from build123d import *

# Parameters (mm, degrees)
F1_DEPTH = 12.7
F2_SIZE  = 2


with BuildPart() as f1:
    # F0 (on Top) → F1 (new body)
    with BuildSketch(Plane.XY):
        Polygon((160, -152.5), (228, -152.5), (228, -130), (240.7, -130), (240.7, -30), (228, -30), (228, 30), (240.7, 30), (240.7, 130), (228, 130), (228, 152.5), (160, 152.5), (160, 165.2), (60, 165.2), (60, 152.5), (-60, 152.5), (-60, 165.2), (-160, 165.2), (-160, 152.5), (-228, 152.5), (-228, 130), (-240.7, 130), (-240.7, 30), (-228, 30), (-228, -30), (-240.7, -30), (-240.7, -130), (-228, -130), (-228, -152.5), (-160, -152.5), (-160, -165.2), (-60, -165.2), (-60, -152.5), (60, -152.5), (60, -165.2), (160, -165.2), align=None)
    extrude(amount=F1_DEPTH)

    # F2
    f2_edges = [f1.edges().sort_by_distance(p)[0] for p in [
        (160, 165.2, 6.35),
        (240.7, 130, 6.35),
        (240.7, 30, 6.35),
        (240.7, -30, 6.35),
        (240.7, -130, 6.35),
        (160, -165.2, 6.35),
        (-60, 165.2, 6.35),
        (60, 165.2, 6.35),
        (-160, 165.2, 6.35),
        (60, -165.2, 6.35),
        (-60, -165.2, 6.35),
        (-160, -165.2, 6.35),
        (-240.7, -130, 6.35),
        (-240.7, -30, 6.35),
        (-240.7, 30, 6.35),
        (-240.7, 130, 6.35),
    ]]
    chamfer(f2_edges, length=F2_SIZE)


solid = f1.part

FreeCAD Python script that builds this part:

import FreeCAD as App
import Part
import Sketcher

V = App.Vector
Q = App.Units.Quantity


def edges_at(feature, points):
    """Names of the edges that pass closest to the given points."""
    edges = feature.Shape.Edges
    near = lambda p: min(range(len(edges)), key=lambda i: edges[i].distToShape(Part.Vertex(*p))[0])
    return sorted({f"Edge{near(p) + 1}" for p in points})

doc = App.newDocument("Part")
body = doc.addObject("PartDesign::Body", "Body")

# Sketch on XY plane
sketch1 = doc.addObject("Sketcher::SketchObject", "Sketch")
body.addObject(sketch1)
sketch1.AttachmentSupport = (doc.XY_Plane, [""])
sketch1.MapMode = "FlatFace"
sketch1.addGeometry(Part.LineSegment(V(160, -152, 0), V(228, -152, 0)), False)
sketch1.addGeometry(Part.LineSegment(V(228, -152, 0), V(228, -130, 0)), False)
sketch1.addGeometry(Part.LineSegment(V(228, -130, 0), V(241, -130, 0)), False)
sketch1.addGeometry(Part.LineSegment(V(241, -130, 0), V(241, -30, 0)), False)
sketch1.addGeometry(Part.LineSegment(V(241, -30, 0), V(228, -30, 0)), False)
sketch1.addGeometry(Part.LineSegment(V(228, -30, 0), V(228, 30, 0)), False)
sketch1.addGeometry(Part.LineSegment(V(228, 30, 0), V(241, 30, 0)), False)
sketch1.addGeometry(Part.LineSegment(V(241, 30, 0), V(241, 130, 0)), False)
sketch1.addGeometry(Part.LineSegment(V(241, 130, 0), V(228, 130, 0)), False)
sketch1.addGeometry(Part.LineSegment(V(228, 130, 0), V(228, 152, 0)), False)
sketch1.addGeometry(Part.LineSegment(V(228, 152, 0), V(160, 152, 0)), False)
sketch1.addGeometry(Part.LineSegment(V(160, 152, 0), V(160, 165, 0)), False)
sketch1.addGeometry(Part.LineSegment(V(160, 165, 0), V(60, 165, 0)), False)
sketch1.addGeometry(Part.LineSegment(V(60, 165, 0), V(60, 152, 0)), False)
sketch1.addGeometry(Part.LineSegment(V(60, 152, 0), V(-60, 152, 0)), False)
sketch1.addGeometry(Part.LineSegment(V(-60, 152, 0), V(-60, 165, 0)), False)
sketch1.addGeometry(Part.LineSegment(V(-60, 165, 0), V(-160, 165, 0)), False)
sketch1.addGeometry(Part.LineSegment(V(-160, 165, 0), V(-160, 152, 0)), False)
sketch1.addGeometry(Part.LineSegment(V(-160, 152, 0), V(-228, 152, 0)), False)
sketch1.addGeometry(Part.LineSegment(V(-228, 152, 0), V(-228, 130, 0)), False)
sketch1.addGeometry(Part.LineSegment(V(-228, 130, 0), V(-241, 130, 0)), False)
sketch1.addGeometry(Part.LineSegment(V(-241, 130, 0), V(-241, 30, 0)), False)
sketch1.addGeometry(Part.LineSegment(V(-241, 30, 0), V(-228, 30, 0)), False)
sketch1.addGeometry(Part.LineSegment(V(-228, 30, 0), V(-228, -30, 0)), False)
sketch1.addGeometry(Part.LineSegment(V(-228, -30, 0), V(-241, -30, 0)), False)
sketch1.addGeometry(Part.LineSegment(V(-241, -30, 0), V(-241, -130, 0)), False)
sketch1.addGeometry(Part.LineSegment(V(-241, -130, 0), V(-228, -130, 0)), False)
sketch1.addGeometry(Part.LineSegment(V(-228, -130, 0), V(-228, -152, 0)), False)
sketch1.addGeometry(Part.LineSegment(V(-228, -152, 0), V(-160, -152, 0)), False)
sketch1.addGeometry(Part.LineSegment(V(-160, -152, 0), V(-160, -165, 0)), False)
sketch1.addGeometry(Part.LineSegment(V(-160, -165, 0), V(-60, -165, 0)), False)
sketch1.addGeometry(Part.LineSegment(V(-60, -165, 0), V(-60, -152, 0)), False)
sketch1.addGeometry(Part.LineSegment(V(-60, -152, 0), V(60, -152, 0)), False)
sketch1.addGeometry(Part.LineSegment(V(60, -152, 0), V(60, -165, 0)), False)
sketch1.addGeometry(Part.LineSegment(V(60, -165, 0), V(160, -165, 0)), False)
sketch1.addGeometry(Part.LineSegment(V(160, -165, 0), V(160, -152, 0)), False)
sketch1.addConstraint(Sketcher.Constraint("Coincident", 0, 2, 1, 1))
sketch1.addConstraint(Sketcher.Constraint("Coincident", 1, 2, 2, 1))
sketch1.addConstraint(Sketcher.Constraint("Coincident", 2, 2, 3, 1))
sketch1.addConstraint(Sketcher.Constraint("Coincident", 3, 2, 4, 1))
sketch1.addConstraint(Sketcher.Constraint("Coincident", 4, 2, 5, 1))
sketch1.addConstraint(Sketcher.Constraint("Coincident", 5, 2, 6, 1))
sketch1.addConstraint(Sketcher.Constraint("Coincident", 6, 2, 7, 1))
sketch1.addConstraint(Sketcher.Constraint("Coincident", 7, 2, 8, 1))
sketch1.addConstraint(Sketcher.Constraint("Coincident", 8, 2, 9, 1))
sketch1.addConstraint(Sketcher.Constraint("Coincident", 9, 2, 10, 1))
sketch1.addConstraint(Sketcher.Constraint("Coincident", 10, 2, 11, 1))
sketch1.addConstraint(Sketcher.Constraint("Coincident", 11, 2, 12, 1))
sketch1.addConstraint(Sketcher.Constraint("Coincident", 12, 2, 13, 1))
sketch1.addConstraint(Sketcher.Constraint("Coincident", 13, 2, 14, 1))
sketch1.addConstraint(Sketcher.Constraint("Coincident", 14, 2, 15, 1))
sketch1.addConstraint(Sketcher.Constraint("Coincident", 15, 2, 16, 1))
sketch1.addConstraint(Sketcher.Constraint("Coincident", 16, 2, 17, 1))
sketch1.addConstraint(Sketcher.Constraint("Coincident", 17, 2, 18, 1))
sketch1.addConstraint(Sketcher.Constraint("Coincident", 18, 2, 19, 1))
sketch1.addConstraint(Sketcher.Constraint("Coincident", 19, 2, 20, 1))
sketch1.addConstraint(Sketcher.Constraint("Coincident", 20, 2, 21, 1))
sketch1.addConstraint(Sketcher.Constraint("Coincident", 21, 2, 22, 1))
sketch1.addConstraint(Sketcher.Constraint("Coincident", 22, 2, 23, 1))
sketch1.addConstraint(Sketcher.Constraint("Coincident", 23, 2, 24, 1))
sketch1.addConstraint(Sketcher.Constraint("Coincident", 24, 2, 25, 1))
sketch1.addConstraint(Sketcher.Constraint("Coincident", 25, 2, 26, 1))
sketch1.addConstraint(Sketcher.Constraint("Coincident", 26, 2, 27, 1))
sketch1.addConstraint(Sketcher.Constraint("Coincident", 27, 2, 28, 1))
sketch1.addConstraint(Sketcher.Constraint("Coincident", 28, 2, 29, 1))
sketch1.addConstraint(Sketcher.Constraint("Coincident", 29, 2, 30, 1))
sketch1.addConstraint(Sketcher.Constraint("Coincident", 30, 2, 31, 1))
sketch1.addConstraint(Sketcher.Constraint("Coincident", 31, 2, 32, 1))
sketch1.addConstraint(Sketcher.Constraint("Coincident", 32, 2, 33, 1))
sketch1.addConstraint(Sketcher.Constraint("Coincident", 33, 2, 34, 1))
sketch1.addConstraint(Sketcher.Constraint("Coincident", 34, 2, 35, 1))
sketch1.addConstraint(Sketcher.Constraint("Coincident", 35, 2, 0, 1))
sketch1.addConstraint(Sketcher.Constraint("Horizontal", 0))
sketch1.addConstraint(Sketcher.Constraint("Vertical", 1))
sketch1.addConstraint(Sketcher.Constraint("Horizontal", 2))
sketch1.addConstraint(Sketcher.Constraint("Vertical", 3))
sketch1.addConstraint(Sketcher.Constraint("Horizontal", 4))
sketch1.addConstraint(Sketcher.Constraint("Vertical", 5))
sketch1.addConstraint(Sketcher.Constraint("Horizontal", 6))
sketch1.addConstraint(Sketcher.Constraint("Vertical", 7))
sketch1.addConstraint(Sketcher.Constraint("Horizontal", 8))
sketch1.addConstraint(Sketcher.Constraint("Vertical", 9))
sketch1.addConstraint(Sketcher.Constraint("Horizontal", 10))
sketch1.addConstraint(Sketcher.Constraint("Vertical", 11))
sketch1.addConstraint(Sketcher.Constraint("Horizontal", 12))
sketch1.addConstraint(Sketcher.Constraint("Vertical", 13))
sketch1.addConstraint(Sketcher.Constraint("Horizontal", 14))
sketch1.addConstraint(Sketcher.Constraint("Vertical", 15))
sketch1.addConstraint(Sketcher.Constraint("Horizontal", 16))
sketch1.addConstraint(Sketcher.Constraint("Vertical", 17))
sketch1.addConstraint(Sketcher.Constraint("Horizontal", 18))
sketch1.addConstraint(Sketcher.Constraint("Vertical", 19))
sketch1.addConstraint(Sketcher.Constraint("Horizontal", 20))
sketch1.addConstraint(Sketcher.Constraint("Vertical", 21))
sketch1.addConstraint(Sketcher.Constraint("Horizontal", 22))
sketch1.addConstraint(Sketcher.Constraint("Vertical", 23))
sketch1.addConstraint(Sketcher.Constraint("Horizontal", 24))
sketch1.addConstraint(Sketcher.Constraint("Vertical", 25))
sketch1.addConstraint(Sketcher.Constraint("Horizontal", 26))
sketch1.addConstraint(Sketcher.Constraint("Vertical", 27))
sketch1.addConstraint(Sketcher.Constraint("Horizontal", 28))
sketch1.addConstraint(Sketcher.Constraint("Vertical", 29))
sketch1.addConstraint(Sketcher.Constraint("Horizontal", 30))
sketch1.addConstraint(Sketcher.Constraint("Vertical", 31))
sketch1.addConstraint(Sketcher.Constraint("Horizontal", 32))
sketch1.addConstraint(Sketcher.Constraint("Vertical", 33))
sketch1.addConstraint(Sketcher.Constraint("Horizontal", 34))
sketch1.addConstraint(Sketcher.Constraint("Vertical", 35))
sketch1.addConstraint(Sketcher.Constraint("Symmetric", 0, 2, 18, 2, -1, 1))
sketch1.addConstraint(Sketcher.Constraint("Symmetric", 2, 2, 20, 2, -1, 1))
sketch1.addConstraint(Sketcher.Constraint("Symmetric", 4, 2, 22, 2, -1, 1))
sketch1.addConstraint(Sketcher.Constraint("Symmetric", 6, 2, 24, 2, -1, 1))
sketch1.addConstraint(Sketcher.Constraint("Symmetric", 8, 2, 26, 2, -1, 1))
sketch1.addConstraint(Sketcher.Constraint("Symmetric", 10, 2, 28, 2, -1, 1))
sketch1.addConstraint(Sketcher.Constraint("Symmetric", 12, 2, 30, 2, -1, 1))
sketch1.addConstraint(Sketcher.Constraint("Symmetric", 14, 2, 32, 2, -1, 1))
sketch1.addConstraint(Sketcher.Constraint("Symmetric", 16, 2, 34, 2, -1, 1))
sketch1.addConstraint(Sketcher.Constraint("Symmetric", 12, 2, 15, 2, -2))
sketch1.addConstraint(Sketcher.Constraint("Symmetric", 10, 2, 17, 2, -2))
sketch1.addConstraint(Sketcher.Constraint("Symmetric", 8, 2, 19, 2, -2))
sketch1.addConstraint(Sketcher.Constraint("Symmetric", 6, 2, 21, 2, -2))
sketch1.addConstraint(Sketcher.Constraint("Horizontal", 10, 2, 13, 2))
sketch1.addConstraint(Sketcher.Constraint("Vertical", 1, 2, 4, 2))
sketch1.addConstraint(Sketcher.Constraint("Equal", 34, 3))
sketch1.addConstraint(Sketcher.Constraint("Equal", 26, 11))
sketch1.addConstraint(Sketcher.Constraint("DistanceX", 0, 1, 0, 2, Q("68 mm")))
sketch1.addConstraint(Sketcher.Constraint("DistanceX", 12, 2, 12, 1, Q("100 mm")))
sketch1.addConstraint(Sketcher.Constraint("DistanceX", 14, 2, 14, 1, Q("120 mm")))
sketch1.addConstraint(Sketcher.Constraint("DistanceY", 5, 1, 5, 2, Q("60 mm")))
sketch1.addConstraint(Sketcher.Constraint("DistanceX", 2, 1, 2, 2, Q("12.7 mm")))
sketch1.addConstraint(Sketcher.Constraint("DistanceY", 1, 1, 1, 2, Q("22.5 mm")))
pad1 = doc.addObject("PartDesign::Pad", "Pad")
body.addObject(pad1)
pad1.Profile = sketch1
pad1.Length = 12.7
doc.recompute()

chamfer = doc.addObject("PartDesign::Chamfer", "Chamfer")
body.addObject(chamfer)
chamfer.Base = (pad1, edges_at(pad1, [
    (160, 165.2, 6.35),
    (240.7, 130, 6.35),
    (240.7, 30, 6.35),
    (240.7, -30, 6.35),
    (240.7, -130, 6.35),
    (160, -165.2, 6.35),
    (-60, 165.2, 6.35),
    (60, 165.2, 6.35),
    (-160, 165.2, 6.35),
    (60, -165.2, 6.35),
    (-60, -165.2, 6.35),
    (-160, -165.2, 6.35),
    (-240.7, -130, 6.35),
    (-240.7, -30, 6.35),
    (-240.7, 30, 6.35),
    (-240.7, 130, 6.35),
]))
chamfer.Size = 2

doc.recompute()
